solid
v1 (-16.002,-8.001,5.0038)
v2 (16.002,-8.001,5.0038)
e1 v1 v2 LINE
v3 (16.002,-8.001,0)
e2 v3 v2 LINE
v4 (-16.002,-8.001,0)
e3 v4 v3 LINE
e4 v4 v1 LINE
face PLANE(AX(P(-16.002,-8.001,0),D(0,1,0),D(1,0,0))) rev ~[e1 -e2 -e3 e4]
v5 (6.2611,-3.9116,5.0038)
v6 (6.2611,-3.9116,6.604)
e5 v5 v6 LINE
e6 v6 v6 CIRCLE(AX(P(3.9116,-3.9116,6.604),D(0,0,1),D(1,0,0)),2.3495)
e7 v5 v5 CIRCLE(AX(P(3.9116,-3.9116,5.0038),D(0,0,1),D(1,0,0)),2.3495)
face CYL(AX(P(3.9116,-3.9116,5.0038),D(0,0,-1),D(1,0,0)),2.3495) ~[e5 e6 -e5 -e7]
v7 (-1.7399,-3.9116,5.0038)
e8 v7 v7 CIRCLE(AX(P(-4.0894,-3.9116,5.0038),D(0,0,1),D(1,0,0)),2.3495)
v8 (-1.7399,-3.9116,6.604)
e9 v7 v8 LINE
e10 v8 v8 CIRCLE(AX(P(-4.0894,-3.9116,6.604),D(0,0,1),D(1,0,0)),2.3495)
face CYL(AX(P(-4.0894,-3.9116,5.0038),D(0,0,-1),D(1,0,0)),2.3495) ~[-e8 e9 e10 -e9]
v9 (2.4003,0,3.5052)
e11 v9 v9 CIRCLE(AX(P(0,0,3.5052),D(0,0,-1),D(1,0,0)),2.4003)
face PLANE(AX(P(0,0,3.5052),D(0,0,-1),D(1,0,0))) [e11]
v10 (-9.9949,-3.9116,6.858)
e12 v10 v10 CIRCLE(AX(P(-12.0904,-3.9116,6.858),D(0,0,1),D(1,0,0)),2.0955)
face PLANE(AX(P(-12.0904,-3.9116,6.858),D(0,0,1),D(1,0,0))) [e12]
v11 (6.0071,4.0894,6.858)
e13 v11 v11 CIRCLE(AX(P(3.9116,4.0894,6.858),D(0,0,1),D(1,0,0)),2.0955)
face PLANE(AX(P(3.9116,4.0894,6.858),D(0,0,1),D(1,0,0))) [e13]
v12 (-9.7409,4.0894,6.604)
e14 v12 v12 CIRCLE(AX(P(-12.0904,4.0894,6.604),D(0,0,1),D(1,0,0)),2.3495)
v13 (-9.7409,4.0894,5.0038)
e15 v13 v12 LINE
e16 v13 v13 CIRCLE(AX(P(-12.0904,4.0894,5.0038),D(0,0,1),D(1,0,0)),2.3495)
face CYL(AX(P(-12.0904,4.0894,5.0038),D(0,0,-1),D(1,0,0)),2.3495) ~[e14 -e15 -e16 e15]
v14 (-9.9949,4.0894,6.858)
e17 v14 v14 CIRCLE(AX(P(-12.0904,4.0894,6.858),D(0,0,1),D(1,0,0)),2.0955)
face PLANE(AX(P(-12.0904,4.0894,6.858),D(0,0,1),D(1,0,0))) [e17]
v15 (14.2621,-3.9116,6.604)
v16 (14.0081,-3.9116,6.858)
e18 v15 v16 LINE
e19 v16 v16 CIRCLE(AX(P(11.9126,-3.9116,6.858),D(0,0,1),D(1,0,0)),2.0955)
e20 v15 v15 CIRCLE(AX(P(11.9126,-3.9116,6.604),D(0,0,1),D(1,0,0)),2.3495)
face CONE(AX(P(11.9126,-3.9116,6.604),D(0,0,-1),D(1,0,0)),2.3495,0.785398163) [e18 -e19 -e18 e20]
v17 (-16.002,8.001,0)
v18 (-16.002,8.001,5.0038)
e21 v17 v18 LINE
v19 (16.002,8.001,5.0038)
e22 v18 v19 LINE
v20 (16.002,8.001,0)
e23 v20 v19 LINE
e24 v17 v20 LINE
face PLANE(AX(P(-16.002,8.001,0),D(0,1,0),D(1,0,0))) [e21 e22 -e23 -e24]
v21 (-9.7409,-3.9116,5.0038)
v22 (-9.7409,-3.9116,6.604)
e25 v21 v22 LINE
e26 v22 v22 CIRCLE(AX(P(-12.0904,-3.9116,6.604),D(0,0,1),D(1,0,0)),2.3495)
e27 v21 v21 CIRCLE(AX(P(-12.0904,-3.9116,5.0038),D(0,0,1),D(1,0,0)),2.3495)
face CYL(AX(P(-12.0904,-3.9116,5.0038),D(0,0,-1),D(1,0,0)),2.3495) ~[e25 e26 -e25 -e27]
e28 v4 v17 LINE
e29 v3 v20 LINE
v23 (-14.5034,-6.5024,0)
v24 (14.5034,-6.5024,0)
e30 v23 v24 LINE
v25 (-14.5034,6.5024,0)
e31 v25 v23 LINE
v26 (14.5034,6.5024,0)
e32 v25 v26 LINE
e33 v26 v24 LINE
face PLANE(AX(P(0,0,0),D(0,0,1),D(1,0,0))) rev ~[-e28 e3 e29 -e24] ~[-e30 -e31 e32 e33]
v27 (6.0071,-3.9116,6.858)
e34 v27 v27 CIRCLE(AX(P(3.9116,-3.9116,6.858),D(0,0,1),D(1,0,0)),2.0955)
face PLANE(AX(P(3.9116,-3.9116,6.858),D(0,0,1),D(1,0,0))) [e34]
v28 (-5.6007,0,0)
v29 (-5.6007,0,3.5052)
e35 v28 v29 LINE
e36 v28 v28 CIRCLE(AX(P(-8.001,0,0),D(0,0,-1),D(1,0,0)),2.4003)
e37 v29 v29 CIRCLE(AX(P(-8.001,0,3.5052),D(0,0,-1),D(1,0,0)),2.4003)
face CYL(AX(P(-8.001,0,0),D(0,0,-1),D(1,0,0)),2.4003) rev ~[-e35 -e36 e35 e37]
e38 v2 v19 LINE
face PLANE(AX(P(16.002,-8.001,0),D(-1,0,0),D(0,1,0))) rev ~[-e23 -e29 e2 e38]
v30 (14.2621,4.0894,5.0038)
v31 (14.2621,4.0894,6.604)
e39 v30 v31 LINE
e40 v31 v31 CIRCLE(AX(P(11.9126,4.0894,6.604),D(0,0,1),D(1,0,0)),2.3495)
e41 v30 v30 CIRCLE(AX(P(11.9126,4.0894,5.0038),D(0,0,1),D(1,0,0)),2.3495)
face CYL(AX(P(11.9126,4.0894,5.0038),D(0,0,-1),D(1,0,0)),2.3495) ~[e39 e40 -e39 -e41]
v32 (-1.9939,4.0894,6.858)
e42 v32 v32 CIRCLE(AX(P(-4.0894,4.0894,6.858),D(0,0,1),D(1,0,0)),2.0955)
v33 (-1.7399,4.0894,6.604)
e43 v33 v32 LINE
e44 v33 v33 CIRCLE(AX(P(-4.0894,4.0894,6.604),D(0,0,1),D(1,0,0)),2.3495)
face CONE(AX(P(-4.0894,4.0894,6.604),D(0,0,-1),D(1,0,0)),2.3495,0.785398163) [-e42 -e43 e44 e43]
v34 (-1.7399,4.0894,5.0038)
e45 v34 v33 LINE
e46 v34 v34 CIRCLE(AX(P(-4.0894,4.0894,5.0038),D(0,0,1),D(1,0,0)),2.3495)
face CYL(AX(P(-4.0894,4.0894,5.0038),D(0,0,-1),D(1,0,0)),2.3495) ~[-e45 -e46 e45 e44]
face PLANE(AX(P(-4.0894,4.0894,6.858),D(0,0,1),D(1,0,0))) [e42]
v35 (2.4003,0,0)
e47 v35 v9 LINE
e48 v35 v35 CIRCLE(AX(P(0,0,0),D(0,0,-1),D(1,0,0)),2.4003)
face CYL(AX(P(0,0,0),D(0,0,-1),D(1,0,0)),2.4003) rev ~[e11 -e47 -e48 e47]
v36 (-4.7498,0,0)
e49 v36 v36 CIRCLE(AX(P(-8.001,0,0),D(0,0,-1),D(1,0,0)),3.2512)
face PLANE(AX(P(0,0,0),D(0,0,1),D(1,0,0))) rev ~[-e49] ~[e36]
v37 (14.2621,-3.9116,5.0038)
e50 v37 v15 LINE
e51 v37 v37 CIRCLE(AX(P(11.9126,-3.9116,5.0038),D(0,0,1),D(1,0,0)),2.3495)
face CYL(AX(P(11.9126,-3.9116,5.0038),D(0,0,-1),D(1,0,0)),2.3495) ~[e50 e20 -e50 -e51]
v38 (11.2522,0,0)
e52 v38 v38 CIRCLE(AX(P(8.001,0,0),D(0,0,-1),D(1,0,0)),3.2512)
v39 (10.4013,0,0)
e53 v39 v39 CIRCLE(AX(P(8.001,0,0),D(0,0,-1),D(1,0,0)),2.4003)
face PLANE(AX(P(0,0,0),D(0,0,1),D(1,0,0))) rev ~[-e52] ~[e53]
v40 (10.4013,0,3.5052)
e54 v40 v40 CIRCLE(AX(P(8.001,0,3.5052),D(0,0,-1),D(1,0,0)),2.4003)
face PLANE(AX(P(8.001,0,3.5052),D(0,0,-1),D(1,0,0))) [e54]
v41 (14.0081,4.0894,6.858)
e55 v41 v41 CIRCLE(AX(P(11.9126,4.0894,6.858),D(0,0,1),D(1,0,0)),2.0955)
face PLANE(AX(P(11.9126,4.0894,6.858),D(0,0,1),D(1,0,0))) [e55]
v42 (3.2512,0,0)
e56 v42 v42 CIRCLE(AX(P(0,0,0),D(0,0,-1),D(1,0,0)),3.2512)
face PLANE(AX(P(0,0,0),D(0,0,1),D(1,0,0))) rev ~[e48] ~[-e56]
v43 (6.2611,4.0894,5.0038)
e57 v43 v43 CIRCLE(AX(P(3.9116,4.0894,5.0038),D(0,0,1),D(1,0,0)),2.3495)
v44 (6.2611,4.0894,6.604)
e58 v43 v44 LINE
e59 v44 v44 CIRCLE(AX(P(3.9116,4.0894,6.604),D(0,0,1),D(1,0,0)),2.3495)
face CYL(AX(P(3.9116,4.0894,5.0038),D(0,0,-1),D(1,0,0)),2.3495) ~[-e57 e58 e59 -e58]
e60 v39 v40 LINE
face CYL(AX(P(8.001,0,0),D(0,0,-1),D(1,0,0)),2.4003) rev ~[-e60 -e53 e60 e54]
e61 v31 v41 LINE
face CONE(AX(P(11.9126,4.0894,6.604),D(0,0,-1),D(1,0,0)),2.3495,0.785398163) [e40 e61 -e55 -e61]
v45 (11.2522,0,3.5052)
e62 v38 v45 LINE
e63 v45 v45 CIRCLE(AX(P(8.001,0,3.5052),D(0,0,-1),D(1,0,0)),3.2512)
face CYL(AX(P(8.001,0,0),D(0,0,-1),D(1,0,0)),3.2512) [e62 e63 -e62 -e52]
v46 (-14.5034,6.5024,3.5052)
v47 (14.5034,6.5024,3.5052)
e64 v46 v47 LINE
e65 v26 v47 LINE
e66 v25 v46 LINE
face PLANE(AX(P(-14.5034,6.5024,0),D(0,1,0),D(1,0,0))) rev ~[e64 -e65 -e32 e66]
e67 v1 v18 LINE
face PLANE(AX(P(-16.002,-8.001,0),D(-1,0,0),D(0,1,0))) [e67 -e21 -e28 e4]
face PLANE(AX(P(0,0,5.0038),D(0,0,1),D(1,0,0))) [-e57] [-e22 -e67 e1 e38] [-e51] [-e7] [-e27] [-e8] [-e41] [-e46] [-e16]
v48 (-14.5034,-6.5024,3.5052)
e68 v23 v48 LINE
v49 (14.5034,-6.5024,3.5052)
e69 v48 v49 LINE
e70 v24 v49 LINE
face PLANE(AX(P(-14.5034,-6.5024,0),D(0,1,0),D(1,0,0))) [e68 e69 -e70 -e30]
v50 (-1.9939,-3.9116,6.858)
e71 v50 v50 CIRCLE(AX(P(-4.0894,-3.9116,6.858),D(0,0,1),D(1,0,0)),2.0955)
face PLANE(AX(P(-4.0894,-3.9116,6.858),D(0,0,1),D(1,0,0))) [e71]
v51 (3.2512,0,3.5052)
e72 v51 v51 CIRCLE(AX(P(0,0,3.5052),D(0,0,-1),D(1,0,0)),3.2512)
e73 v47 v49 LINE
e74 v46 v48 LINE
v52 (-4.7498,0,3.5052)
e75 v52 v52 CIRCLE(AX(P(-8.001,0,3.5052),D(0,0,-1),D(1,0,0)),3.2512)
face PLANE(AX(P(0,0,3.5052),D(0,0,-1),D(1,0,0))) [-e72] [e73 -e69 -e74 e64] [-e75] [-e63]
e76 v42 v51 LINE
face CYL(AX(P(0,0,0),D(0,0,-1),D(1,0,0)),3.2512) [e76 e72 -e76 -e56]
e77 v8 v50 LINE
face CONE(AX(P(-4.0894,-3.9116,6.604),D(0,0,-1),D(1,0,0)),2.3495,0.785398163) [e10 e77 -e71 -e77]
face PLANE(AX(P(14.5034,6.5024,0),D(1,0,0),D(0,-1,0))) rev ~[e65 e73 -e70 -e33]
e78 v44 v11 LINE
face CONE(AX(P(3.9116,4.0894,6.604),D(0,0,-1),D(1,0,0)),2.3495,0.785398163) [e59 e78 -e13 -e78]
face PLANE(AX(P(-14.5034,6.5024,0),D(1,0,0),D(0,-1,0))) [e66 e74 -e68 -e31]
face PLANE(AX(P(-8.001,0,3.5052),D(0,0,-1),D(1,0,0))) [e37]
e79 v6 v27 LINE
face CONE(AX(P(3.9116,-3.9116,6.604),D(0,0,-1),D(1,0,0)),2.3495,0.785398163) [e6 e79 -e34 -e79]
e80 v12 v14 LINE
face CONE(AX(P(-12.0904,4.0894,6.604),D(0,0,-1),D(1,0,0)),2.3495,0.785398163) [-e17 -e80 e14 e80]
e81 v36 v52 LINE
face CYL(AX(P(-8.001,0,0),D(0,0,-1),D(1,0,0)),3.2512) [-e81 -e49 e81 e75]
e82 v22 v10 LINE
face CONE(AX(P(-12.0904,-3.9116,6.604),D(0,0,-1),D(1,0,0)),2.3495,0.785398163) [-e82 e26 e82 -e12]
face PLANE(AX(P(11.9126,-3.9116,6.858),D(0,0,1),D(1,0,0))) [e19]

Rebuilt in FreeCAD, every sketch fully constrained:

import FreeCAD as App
import Part
import Sketcher

V = App.Vector
Q = App.Units.Quantity


def edges_at(feature, points):
    """Names of the edges that pass closest to the given points."""
    edges = feature.Shape.Edges
    near = lambda p: min(range(len(edges)), key=lambda i: edges[i].distToShape(Part.Vertex(*p))[0])
    return sorted({f"Edge{near(p) + 1}" for p in points})


def add_polygon(sketch, points):
    """Adds a closed chain of lines whose ends are joined by coincident constraints."""
    first, n = sketch.GeometryCount, len(points)
    for a, b in zip(points, points[1:] + points[:1]):
        sketch.addGeometry(Part.LineSegment(App.Vector(*a, 0), App.Vector(*b, 0)), False)
    for i in range(n):
        sketch.addConstraint(Sketcher.Constraint("Coincident", first + i, 2, first + (i + 1) % n, 1))

doc = App.newDocument("Part")
body = doc.addObject("PartDesign::Body", "Body")

# Sketch on XY plane
sketch1 = doc.addObject("Sketcher::SketchObject", "Sketch")
body.addObject(sketch1)
sketch1.AttachmentSupport = (doc.XY_Plane, [""])
sketch1.MapMode = "FlatFace"
add_polygon(sketch1, [(-16.002, 8.001), (-16.002, -8.001), (16.002, -8.001), (16.002, 8.001)])  # lines 0-3
sketch1.addConstraint(Sketcher.Constraint("Vertical", 0))
sketch1.addConstraint(Sketcher.Constraint("Horizontal", 1))
sketch1.addConstraint(Sketcher.Constraint("Vertical", 2))
sketch1.addConstraint(Sketcher.Constraint("Horizontal", 3))
sketch1.addConstraint(Sketcher.Constraint("Symmetric", 0, 2, 2, 2, -1, 1))
sketch1.addConstraint(Sketcher.Constraint("DistanceX", 1, 1, 1, 2, Q("1.26 in")))
sketch1.addConstraint(Sketcher.Constraint("DistanceY", 0, 2, 0, 1, Q("0.63 in")))
pad1 = doc.addObject("PartDesign::Pad", "Pad")
body.addObject(pad1)
pad1.Profile = sketch1
pad1.Length = Q("0.197 in")

# Sketch on XY plane
sketch2 = doc.addObject("Sketcher::SketchObject", "Sketch001")
body.addObject(sketch2)
sketch2.AttachmentSupport = (doc.XY_Plane, [""])
sketch2.MapMode = "FlatFace"
sketch2.AttachmentOffset = App.Placement(V(0, 0, 0.197 * 25.4), App.Rotation())
sketch2.addGeometry(Part.Circle(V(-12.0904, 4.0894, 0), V(0, 0, 1), 2.3495), False)
sketch2.addGeometry(Part.Circle(V(-12.0904, -3.9116, 0), V(0, 0, 1), 2.3495), False)
sketch2.addGeometry(Part.Circle(V(-4.0894, 4.0894, 0), V(0, 0, 1), 2.3495), False)
sketch2.addGeometry(Part.Circle(V(-4.0894, -3.9116, 0), V(0, 0, 1), 2.3495), False)
sketch2.addGeometry(Part.Circle(V(3.9116, 4.0894, 0), V(0, 0, 1), 2.3495), False)
sketch2.addGeometry(Part.Circle(V(3.9116, -3.9116, 0), V(0, 0, 1), 2.3495), False)
sketch2.addGeometry(Part.Circle(V(11.9126, 4.0894, 0), V(0, 0, 1), 2.3495), False)
sketch2.addGeometry(Part.Circle(V(11.9126, -3.9116, 0), V(0, 0, 1), 2.3495), False)
sketch2.addConstraint(Sketcher.Constraint("Equal", 0, 1))
sketch2.addConstraint(Sketcher.Constraint("Equal", 1, 2))
sketch2.addConstraint(Sketcher.Constraint("Equal", 2, 3))
sketch2.addConstraint(Sketcher.Constraint("Equal", 3, 4))
sketch2.addConstraint(Sketcher.Constraint("Equal", 4, 5))
sketch2.addConstraint(Sketcher.Constraint("Equal", 5, 6))
sketch2.addConstraint(Sketcher.Constraint("Equal", 6, 7))
sketch2.addConstraint(Sketcher.Constraint("Horizontal", 0, 3, 2, 3))
sketch2.addConstraint(Sketcher.Constraint("Horizontal", 1, 3, 3, 3))
sketch2.addConstraint(Sketcher.Constraint("Horizontal", 2, 3, 4, 3))
sketch2.addConstraint(Sketcher.Constraint("Horizontal", 3, 3, 5, 3))
sketch2.addConstraint(Sketcher.Constraint("Horizontal", 4, 3, 6, 3))
sketch2.addConstraint(Sketcher.Constraint("Horizontal", 5, 3, 7, 3))
sketch2.addConstraint(Sketcher.Constraint("Vertical", 0, 3, 1, 3))
sketch2.addConstraint(Sketcher.Constraint("Vertical", 2, 3, 3, 3))
sketch2.addConstraint(Sketcher.Constraint("Vertical", 4, 3, 5, 3))
sketch2.addConstraint(Sketcher.Constraint("Vertical", 6, 3, 7, 3))
sketch2.addConstraint(Sketcher.Constraint("Diameter", 0, Q("0.185 in")))
sketch2.addConstraint(Sketcher.Constraint("DistanceX", 0, 3, 4, 3, Q("0.63 in")))
sketch2.addConstraint(Sketcher.Constraint("DistanceX", 2, 3, 6, 3, Q("0.63 in")))
sketch2.addConstraint(Sketcher.Constraint("DistanceX", 0, 3, -1, 1, Q("0.476 in")))
sketch2.addConstraint(Sketcher.Constraint("DistanceY", -1, 1, 0, 3, Q("0.161 in")))
sketch2.addConstraint(Sketcher.Constraint("DistanceY", 1, 3, -1, 1, Q("0.154 in")))
sketch2.addConstraint(Sketcher.Constraint("DistanceX", 2, 3, -1, 1, Q("0.161 in")))
pad2 = doc.addObject("PartDesign::Pad", "Pad001")
body.addObject(pad2)
pad2.Profile = sketch2
pad2.Length = Q("0.073 in")

# Sketch on XY plane
sketch3 = doc.addObject("Sketcher::SketchObject", "Sketch002")
body.addObject(sketch3)
sketch3.AttachmentSupport = (doc.XY_Plane, [""])
sketch3.MapMode = "FlatFace"
add_polygon(sketch3, [(-14.5034, -6.5024), (-14.5034, 6.5024), (14.5034, 6.5024), (14.5034, -6.5024)])  # lines 0-3
sketch3.addGeometry(Part.Circle(V(-8.001, 0, 0), V(0, 0, 1), 3.2512), False)  # 4
sketch3.addGeometry(Part.Circle(V(0, 0, 0), V(0, 0, 1), 3.2512), False)  # 5
sketch3.addGeometry(Part.Circle(V(8.001, 0, 0), V(0, 0, 1), 3.2512), False)  # 6
sketch3.addGeometry(Part.Circle(V(-8.001, 0, 0), V(0, 0, 1), 2.4003), False)  # 7
sketch3.addGeometry(Part.Circle(V(8.001, 0, 0), V(0, 0, 1), 2.4003), False)  # 8
sketch3.addGeometry(Part.Circle(V(0, 0, 0), V(0, 0, 1), 2.4003), False)  # 9
sketch3.addConstraint(Sketcher.Constraint("Vertical", 0))
sketch3.addConstraint(Sketcher.Constraint("Horizontal", 1))
sketch3.addConstraint(Sketcher.Constraint("Vertical", 2))
sketch3.addConstraint(Sketcher.Constraint("Horizontal", 3))
sketch3.addConstraint(Sketcher.Constraint("Coincident", 5, 3, -1, 1))
sketch3.addConstraint(Sketcher.Constraint("Coincident", 9, 3, -1, 1))
sketch3.addConstraint(Sketcher.Constraint("Coincident", 7, 3, 4, 3))
sketch3.addConstraint(Sketcher.Constraint("Coincident", 8, 3, 6, 3))
sketch3.addConstraint(Sketcher.Constraint("Equal", 4, 5))
sketch3.addConstraint(Sketcher.Constraint("Equal", 5, 6))
sketch3.addConstraint(Sketcher.Constraint("Equal", 7, 8))
sketch3.addConstraint(Sketcher.Constraint("Equal", 8, 9))
sketch3.addConstraint(Sketcher.Constraint("Symmetric", 4, 3, 6, 3, -1, 1))
sketch3.addConstraint(Sketcher.Constraint("Symmetric", 0, 2, 2, 2, -1, 1))
sketch3.addConstraint(Sketcher.Constraint("PointOnObject", 4, 3, -1))
sketch3.addConstraint(Sketcher.Constraint("Diameter", 4, Q("0.256 in")))
sketch3.addConstraint(Sketcher.Constraint("Diameter", 7, Q("0.189 in")))
sketch3.addConstraint(Sketcher.Constraint("DistanceX", 1, 1, 1, 2, Q("1.142 in")))
sketch3.addConstraint(Sketcher.Constraint("DistanceY", 0, 1, 0, 2, Q("0.512 in")))
sketch3.addConstraint(Sketcher.Constraint("DistanceX", 4, 3, 6, 3, Q("0.63 in")))
pocket1 = doc.addObject("PartDesign::Pocket", "Pocket")
body.addObject(pocket1)
pocket1.Profile = sketch3
pocket1.Length = Q("0.138 in")
pocket1.Reversed = True
doc.recompute()

chamfer = doc.addObject("PartDesign::Chamfer", "Chamfer")
body.addObject(chamfer)
chamfer.Base = (pocket1, edges_at(pocket1, [
    (-14.44, 4.089, 6.858),
    (-14.44, -3.912, 6.858),
    (-6.439, -3.912, 6.858),
    (-6.439, 4.089, 6.858),
    (1.562, 4.089, 6.858),
    (1.562, -3.912, 6.858),
    (9.563, -3.912, 6.858),
    (9.563, 4.089, 6.858),
]))
chamfer.Size = Q("0.01 in")

doc.recompute()
